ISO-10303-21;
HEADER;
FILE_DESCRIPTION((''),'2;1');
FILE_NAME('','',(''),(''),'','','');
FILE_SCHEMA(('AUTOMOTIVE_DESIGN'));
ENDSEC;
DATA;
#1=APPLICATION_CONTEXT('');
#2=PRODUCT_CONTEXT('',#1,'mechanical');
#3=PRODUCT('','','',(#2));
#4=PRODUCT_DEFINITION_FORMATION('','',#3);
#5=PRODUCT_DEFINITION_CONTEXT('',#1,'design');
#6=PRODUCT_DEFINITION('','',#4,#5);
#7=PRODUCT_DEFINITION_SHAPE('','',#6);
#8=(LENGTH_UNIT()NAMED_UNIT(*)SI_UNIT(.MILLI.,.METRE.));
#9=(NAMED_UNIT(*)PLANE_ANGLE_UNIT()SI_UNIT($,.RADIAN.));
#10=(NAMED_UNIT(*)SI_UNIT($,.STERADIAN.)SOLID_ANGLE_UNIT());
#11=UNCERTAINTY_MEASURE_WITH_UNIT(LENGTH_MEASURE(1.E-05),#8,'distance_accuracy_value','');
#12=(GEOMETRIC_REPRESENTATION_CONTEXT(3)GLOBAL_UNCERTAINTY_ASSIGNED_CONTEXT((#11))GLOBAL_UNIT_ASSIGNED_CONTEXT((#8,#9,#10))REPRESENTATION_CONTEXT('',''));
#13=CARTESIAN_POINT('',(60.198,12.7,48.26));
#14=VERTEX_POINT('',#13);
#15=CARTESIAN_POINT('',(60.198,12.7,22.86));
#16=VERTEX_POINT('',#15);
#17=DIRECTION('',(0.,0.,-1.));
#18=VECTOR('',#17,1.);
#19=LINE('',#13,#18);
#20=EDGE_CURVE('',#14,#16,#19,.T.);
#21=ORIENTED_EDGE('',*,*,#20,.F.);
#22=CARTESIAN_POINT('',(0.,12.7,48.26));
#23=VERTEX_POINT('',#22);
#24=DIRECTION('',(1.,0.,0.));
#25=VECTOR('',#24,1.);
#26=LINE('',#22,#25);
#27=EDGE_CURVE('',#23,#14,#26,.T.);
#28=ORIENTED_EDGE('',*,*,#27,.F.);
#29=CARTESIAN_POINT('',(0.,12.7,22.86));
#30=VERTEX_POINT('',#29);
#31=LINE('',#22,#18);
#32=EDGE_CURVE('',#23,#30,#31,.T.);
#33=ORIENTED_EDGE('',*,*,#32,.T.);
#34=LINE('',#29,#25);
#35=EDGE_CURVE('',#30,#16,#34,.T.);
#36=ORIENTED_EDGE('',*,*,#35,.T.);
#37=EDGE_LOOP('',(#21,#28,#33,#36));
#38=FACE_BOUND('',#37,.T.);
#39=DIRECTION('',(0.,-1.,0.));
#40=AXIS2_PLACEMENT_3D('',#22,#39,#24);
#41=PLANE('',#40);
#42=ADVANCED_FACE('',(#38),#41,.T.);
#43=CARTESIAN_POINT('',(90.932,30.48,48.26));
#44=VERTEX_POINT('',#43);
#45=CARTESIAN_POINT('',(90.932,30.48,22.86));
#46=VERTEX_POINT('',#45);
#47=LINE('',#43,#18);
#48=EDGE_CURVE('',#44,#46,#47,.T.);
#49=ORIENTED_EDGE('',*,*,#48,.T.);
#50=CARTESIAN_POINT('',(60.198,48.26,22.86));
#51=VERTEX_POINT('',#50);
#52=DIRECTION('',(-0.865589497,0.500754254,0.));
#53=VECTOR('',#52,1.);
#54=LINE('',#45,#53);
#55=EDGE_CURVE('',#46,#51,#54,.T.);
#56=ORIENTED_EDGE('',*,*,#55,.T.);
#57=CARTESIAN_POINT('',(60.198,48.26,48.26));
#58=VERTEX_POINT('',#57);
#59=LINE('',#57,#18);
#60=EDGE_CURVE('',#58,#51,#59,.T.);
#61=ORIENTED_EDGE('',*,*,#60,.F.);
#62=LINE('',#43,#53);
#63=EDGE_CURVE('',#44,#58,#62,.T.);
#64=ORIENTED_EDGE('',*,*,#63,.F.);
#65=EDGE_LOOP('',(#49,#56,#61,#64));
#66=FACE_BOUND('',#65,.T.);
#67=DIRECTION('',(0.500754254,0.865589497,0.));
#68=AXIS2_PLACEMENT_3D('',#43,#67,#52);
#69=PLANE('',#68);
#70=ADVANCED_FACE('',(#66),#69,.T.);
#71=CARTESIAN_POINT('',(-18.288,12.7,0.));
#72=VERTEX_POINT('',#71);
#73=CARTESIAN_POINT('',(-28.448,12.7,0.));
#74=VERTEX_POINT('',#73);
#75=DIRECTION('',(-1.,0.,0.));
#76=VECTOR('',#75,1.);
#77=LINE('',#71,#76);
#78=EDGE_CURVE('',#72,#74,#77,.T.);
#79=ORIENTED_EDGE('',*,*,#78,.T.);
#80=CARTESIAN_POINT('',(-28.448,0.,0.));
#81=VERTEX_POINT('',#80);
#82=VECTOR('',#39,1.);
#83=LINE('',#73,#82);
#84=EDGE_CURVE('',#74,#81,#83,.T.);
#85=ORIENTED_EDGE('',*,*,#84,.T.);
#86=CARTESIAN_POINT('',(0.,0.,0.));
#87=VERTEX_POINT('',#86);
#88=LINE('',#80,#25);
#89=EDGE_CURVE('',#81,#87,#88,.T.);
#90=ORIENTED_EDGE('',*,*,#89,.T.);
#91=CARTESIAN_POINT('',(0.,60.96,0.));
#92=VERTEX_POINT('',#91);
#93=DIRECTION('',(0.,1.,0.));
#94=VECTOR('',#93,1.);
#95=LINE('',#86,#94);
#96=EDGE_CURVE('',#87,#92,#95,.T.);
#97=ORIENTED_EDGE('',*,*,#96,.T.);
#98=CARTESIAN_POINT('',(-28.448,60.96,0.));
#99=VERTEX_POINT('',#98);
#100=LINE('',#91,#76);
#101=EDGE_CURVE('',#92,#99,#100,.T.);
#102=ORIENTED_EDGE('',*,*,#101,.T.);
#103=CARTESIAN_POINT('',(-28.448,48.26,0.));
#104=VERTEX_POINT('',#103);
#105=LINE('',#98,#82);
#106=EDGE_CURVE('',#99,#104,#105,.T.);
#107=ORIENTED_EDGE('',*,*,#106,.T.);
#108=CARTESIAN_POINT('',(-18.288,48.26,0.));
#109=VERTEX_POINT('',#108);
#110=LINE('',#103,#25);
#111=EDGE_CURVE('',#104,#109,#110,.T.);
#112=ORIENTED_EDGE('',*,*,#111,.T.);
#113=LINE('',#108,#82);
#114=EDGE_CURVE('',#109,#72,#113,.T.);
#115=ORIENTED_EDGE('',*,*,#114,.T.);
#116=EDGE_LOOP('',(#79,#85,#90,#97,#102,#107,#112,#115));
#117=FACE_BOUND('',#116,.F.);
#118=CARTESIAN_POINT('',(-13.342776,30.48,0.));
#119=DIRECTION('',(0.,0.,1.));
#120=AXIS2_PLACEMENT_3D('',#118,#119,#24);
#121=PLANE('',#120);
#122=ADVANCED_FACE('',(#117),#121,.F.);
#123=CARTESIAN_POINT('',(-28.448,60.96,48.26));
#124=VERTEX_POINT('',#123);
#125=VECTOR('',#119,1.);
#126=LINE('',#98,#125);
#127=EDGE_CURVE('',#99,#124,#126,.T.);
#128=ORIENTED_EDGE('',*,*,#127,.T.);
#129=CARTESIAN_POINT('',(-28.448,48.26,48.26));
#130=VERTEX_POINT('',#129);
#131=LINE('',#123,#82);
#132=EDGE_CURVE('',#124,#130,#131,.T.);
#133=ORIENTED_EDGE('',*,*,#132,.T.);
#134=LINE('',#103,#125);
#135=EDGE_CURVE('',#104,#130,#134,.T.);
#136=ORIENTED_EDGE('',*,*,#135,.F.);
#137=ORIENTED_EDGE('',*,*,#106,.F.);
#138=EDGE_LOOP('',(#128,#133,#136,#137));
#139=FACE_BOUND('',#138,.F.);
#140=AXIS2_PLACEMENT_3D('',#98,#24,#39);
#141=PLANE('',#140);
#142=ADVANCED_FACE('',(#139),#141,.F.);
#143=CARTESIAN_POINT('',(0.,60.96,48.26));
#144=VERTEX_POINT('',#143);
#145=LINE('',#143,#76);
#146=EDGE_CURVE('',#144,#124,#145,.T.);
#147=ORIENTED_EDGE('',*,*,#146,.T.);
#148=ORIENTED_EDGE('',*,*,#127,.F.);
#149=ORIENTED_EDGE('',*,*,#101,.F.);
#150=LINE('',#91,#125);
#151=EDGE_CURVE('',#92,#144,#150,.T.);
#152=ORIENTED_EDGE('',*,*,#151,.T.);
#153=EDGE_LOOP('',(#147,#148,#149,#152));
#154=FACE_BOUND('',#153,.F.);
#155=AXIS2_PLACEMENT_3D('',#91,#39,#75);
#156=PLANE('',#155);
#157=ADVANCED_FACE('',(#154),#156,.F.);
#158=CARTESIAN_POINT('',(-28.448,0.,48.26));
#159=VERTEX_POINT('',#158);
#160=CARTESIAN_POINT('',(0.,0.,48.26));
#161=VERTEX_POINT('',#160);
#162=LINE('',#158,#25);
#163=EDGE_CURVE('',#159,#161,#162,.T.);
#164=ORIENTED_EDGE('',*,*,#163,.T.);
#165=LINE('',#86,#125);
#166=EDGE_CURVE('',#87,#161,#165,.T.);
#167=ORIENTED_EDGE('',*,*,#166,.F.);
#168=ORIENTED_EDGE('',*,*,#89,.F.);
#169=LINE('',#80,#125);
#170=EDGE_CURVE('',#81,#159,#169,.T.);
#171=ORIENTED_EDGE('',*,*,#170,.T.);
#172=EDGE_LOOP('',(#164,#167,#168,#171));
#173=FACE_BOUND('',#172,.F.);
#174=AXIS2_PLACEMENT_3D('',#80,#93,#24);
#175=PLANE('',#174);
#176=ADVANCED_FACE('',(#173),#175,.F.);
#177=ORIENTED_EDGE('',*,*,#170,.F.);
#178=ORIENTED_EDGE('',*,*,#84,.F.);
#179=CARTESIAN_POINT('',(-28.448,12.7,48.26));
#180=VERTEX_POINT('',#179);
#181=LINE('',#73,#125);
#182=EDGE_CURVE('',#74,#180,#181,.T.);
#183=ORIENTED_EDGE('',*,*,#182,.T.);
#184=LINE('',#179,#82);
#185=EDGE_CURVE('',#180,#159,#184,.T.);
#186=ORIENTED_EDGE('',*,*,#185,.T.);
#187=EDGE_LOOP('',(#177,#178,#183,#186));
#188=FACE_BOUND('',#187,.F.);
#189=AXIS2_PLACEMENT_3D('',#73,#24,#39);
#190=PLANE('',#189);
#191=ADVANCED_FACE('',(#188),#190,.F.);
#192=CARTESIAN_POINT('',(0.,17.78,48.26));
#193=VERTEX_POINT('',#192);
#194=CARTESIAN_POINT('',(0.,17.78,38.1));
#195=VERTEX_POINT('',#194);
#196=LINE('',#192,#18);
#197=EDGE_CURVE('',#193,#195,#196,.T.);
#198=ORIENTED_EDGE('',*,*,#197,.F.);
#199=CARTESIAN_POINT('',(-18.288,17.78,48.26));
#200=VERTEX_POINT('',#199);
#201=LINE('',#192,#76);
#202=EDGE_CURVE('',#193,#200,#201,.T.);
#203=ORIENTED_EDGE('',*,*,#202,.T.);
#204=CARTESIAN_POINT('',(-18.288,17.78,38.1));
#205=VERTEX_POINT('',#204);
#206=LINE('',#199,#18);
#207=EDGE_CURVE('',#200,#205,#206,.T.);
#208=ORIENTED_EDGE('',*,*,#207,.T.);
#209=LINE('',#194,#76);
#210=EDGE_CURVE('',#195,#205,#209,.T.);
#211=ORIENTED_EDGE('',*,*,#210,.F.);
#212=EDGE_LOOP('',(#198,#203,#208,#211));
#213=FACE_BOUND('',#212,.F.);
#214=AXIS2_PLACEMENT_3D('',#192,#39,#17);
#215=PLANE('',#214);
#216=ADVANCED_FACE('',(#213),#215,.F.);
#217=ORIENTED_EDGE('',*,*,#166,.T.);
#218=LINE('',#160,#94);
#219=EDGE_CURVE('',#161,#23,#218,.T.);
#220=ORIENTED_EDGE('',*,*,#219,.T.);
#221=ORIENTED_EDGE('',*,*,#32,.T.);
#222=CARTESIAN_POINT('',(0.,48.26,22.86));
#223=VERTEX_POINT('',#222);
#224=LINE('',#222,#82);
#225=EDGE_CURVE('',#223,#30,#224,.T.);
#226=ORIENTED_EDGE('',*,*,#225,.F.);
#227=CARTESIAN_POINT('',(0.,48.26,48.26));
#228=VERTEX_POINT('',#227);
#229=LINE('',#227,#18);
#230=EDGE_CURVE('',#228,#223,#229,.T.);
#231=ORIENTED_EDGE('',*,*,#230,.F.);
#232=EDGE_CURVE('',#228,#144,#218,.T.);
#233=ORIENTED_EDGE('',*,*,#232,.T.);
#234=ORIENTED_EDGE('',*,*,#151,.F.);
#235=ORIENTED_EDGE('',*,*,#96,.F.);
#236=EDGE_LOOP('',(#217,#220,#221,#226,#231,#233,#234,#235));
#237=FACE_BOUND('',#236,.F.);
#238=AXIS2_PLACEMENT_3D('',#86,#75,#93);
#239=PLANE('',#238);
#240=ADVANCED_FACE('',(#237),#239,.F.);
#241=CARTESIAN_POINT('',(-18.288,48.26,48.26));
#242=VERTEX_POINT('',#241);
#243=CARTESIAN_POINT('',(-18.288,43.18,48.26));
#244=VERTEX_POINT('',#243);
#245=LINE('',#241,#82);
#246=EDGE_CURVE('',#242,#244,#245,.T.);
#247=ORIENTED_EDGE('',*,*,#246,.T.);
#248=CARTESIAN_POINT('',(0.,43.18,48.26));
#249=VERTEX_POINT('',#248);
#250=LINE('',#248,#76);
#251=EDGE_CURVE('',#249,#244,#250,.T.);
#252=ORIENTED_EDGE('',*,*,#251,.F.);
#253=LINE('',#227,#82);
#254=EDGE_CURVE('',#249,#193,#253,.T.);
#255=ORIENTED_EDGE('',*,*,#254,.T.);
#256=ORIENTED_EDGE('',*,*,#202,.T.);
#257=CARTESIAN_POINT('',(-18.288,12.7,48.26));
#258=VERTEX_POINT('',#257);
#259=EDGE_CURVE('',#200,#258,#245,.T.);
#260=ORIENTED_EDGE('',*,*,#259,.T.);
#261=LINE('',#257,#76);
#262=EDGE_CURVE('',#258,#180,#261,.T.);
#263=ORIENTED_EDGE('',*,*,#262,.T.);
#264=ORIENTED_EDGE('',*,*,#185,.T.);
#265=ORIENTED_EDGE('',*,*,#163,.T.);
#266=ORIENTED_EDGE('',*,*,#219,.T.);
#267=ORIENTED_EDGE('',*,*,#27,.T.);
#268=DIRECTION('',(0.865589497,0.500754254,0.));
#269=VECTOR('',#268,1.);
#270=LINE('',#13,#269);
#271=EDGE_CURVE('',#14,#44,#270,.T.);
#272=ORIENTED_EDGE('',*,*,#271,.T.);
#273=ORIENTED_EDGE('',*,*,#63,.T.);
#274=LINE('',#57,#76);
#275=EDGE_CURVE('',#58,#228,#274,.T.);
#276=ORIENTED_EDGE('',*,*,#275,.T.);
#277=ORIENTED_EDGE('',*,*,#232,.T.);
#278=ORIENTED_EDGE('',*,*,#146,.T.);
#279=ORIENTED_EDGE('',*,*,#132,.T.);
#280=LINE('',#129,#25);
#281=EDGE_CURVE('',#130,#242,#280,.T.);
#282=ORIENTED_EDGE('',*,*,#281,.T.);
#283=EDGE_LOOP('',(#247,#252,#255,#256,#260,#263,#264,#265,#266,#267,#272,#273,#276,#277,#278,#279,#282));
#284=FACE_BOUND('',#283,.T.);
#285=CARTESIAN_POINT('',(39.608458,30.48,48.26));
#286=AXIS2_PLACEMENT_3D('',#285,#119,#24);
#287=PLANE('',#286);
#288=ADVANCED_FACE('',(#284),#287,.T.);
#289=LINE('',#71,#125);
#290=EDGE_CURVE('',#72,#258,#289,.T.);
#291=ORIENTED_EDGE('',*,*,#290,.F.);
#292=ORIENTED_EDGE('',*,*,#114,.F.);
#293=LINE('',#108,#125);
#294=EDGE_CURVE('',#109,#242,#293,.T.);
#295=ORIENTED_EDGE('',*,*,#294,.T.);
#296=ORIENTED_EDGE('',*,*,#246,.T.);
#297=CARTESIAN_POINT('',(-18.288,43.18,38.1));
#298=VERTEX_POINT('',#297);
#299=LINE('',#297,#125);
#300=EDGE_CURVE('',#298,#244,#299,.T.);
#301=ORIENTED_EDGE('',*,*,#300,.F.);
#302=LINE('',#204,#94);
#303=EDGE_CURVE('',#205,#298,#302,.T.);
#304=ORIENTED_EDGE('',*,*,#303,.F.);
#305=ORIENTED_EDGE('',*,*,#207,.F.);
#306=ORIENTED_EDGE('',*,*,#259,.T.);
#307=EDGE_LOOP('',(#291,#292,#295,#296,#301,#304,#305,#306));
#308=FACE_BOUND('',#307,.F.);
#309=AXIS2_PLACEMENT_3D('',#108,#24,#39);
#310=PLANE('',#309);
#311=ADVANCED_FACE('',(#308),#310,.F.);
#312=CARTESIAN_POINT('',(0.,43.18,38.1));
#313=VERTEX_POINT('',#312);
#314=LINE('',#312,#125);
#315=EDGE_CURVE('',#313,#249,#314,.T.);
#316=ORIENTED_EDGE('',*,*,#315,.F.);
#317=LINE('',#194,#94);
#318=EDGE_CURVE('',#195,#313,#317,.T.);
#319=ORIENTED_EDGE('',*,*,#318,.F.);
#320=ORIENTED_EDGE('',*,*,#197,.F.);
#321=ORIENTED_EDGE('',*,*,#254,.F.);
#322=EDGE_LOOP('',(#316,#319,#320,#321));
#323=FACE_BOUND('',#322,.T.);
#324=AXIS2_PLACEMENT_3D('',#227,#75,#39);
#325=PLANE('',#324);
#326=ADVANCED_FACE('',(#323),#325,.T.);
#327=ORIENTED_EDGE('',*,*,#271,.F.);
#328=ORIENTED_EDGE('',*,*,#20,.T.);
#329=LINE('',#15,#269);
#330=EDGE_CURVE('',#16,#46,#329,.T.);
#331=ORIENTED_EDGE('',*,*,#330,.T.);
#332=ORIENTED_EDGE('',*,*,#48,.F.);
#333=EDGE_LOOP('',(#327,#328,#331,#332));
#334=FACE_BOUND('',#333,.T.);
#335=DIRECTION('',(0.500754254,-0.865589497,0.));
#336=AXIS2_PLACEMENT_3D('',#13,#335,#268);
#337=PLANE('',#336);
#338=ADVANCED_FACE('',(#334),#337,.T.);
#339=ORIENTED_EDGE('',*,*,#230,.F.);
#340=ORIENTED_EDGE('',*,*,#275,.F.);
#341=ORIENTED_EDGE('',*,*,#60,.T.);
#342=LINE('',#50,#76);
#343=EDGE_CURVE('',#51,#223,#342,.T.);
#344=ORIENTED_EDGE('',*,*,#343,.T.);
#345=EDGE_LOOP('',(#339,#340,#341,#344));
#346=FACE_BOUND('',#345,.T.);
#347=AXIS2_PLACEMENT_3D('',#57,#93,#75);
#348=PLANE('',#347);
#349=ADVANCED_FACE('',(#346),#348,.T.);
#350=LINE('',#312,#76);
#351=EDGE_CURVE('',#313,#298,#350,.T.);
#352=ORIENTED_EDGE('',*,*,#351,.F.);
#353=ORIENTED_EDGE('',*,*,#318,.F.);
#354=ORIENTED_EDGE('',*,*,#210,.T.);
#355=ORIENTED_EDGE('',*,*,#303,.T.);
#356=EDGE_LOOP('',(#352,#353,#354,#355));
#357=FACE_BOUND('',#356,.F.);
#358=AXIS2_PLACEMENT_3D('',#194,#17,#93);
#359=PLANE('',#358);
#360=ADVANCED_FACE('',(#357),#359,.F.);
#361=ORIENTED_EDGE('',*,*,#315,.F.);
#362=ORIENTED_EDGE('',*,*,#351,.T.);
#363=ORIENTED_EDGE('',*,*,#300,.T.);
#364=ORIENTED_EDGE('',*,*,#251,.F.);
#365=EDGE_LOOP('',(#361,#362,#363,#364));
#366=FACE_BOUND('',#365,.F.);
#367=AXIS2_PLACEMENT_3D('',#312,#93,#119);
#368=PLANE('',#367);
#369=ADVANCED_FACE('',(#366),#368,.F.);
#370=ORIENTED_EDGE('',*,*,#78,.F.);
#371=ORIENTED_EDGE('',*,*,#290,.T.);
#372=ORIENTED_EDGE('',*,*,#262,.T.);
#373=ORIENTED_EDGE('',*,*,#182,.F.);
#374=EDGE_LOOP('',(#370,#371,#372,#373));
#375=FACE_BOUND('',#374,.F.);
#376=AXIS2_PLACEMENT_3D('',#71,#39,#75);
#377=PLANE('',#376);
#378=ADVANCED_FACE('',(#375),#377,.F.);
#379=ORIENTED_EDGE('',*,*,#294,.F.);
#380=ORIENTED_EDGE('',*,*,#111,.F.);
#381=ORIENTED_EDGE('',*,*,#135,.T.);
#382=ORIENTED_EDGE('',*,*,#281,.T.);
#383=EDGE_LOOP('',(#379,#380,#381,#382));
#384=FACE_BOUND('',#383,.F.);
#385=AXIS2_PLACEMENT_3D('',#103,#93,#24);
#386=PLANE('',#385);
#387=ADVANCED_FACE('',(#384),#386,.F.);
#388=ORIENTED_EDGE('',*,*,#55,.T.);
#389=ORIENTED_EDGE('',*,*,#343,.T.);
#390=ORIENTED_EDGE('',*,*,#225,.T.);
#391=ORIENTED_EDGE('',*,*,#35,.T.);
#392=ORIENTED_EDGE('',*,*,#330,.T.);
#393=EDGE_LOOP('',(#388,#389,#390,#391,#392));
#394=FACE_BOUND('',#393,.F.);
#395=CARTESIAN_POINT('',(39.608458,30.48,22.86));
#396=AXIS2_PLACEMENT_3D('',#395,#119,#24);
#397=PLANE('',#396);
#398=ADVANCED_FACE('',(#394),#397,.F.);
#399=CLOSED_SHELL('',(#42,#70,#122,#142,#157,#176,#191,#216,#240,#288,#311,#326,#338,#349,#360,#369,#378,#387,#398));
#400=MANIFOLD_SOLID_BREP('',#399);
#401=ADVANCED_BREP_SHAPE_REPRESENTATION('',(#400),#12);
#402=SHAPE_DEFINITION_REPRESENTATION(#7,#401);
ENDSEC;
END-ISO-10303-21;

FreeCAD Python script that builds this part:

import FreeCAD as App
import Part
import Sketcher

V = App.Vector
Q = App.Units.Quantity

doc = App.newDocument("Part")
params = doc.addObject("Spreadsheet::Sheet", "Params")
for row, (alias, value) in enumerate([
    ("sketch1_width", "0.4 in"),
    ("sketch1_height", "2.4 in"),
    ("sketch1_height2", "0.5 in"),
    ("sketch1_width2", "1.12 in"),
    ("pad1_length", "1.9 in"),
    ("sketch2_width", "1 in"),
    ("sketch2_height", "0.4 in"),
    ("sketch3_height", "1.4 in"),
    ("sketch3_width", "2.37 in"),
    ("pad2_length", "1 in"),
], start=1):
    params.set(f"A{row}", alias)
    params.set(f"B{row}", "=" + value)
    params.setAlias(f"B{row}", alias)

body = doc.addObject("PartDesign::Body", "Body")

sketch1 = doc.addObject("Sketcher::SketchObject", "Sketch")
body.addObject(sketch1)
sketch1.AttachmentSupport = (doc.XY_Plane, [""])
sketch1.MapMode = "FlatFace"
sketch1.addGeometry([
    Part.LineSegment(V(-28, 0, 0), V(0, 0, 0)),
    Part.LineSegment(V(0, 0, 0), V(0, 61, 0)),
    Part.LineSegment(V(0, 61, 0), V(-28, 61, 0)),
    Part.LineSegment(V(-28, 61, 0), V(-28, 48, 0)),
    Part.LineSegment(V(-28, 48, 0), V(-18, 48, 0)),
    Part.LineSegment(V(-18, 48, 0), V(-18, 13, 0)),
    Part.LineSegment(V(-18, 13, 0), V(-28, 13, 0)),
    Part.LineSegment(V(-28, 13, 0), V(-28, 0, 0)),
], False)
sketch1.addConstraint([
    Sketcher.Constraint("Coincident", 0, 2, 1, 1),
    Sketcher.Constraint("Coincident", 1, 2, 2, 1),
    Sketcher.Constraint("Coincident", 2, 2, 3, 1),
    Sketcher.Constraint("Coincident", 3, 2, 4, 1),
    Sketcher.Constraint("Coincident", 4, 2, 5, 1),
    Sketcher.Constraint("Coincident", 5, 2, 6, 1),
    Sketcher.Constraint("Coincident", 6, 2, 7, 1),
    Sketcher.Constraint("Coincident", 7, 2, 0, 1),
    Sketcher.Constraint("Horizontal", 0),
    Sketcher.Constraint("Vertical", 1),
    Sketcher.Constraint("Horizontal", 2),
    Sketcher.Constraint("Vertical", 3),
    Sketcher.Constraint("Horizontal", 4),
    Sketcher.Constraint("Vertical", 5),
    Sketcher.Constraint("Horizontal", 6),
    Sketcher.Constraint("Vertical", 7),
    Sketcher.Constraint("Coincident", 0, 2, -1, 1),
    Sketcher.Constraint("Vertical", 3, 2, 6, 2),
    Sketcher.Constraint("Equal", 3, 7),
    Sketcher.Constraint("DistanceX", 4, 1, 4, 2, Q("0.4 in")),
    Sketcher.Constraint("DistanceY", 1, 1, 1, 2, Q("2.4 in")),
    Sketcher.Constraint("DistanceY", 3, 2, 3, 1, Q("0.5 in")),
    Sketcher.Constraint("DistanceX", 0, 1, 0, 2, Q("1.12 in")),
])
sketch1.setExpression("Constraints[19]", "Params.sketch1_width")
sketch1.setExpression("Constraints[20]", "Params.sketch1_height")
sketch1.setExpression("Constraints[21]", "Params.sketch1_height2")
sketch1.setExpression("Constraints[22]", "Params.sketch1_width2")
pad1 = doc.addObject("PartDesign::Pad", "Pad")
body.addObject(pad1)
pad1.Profile = sketch1
pad1.setExpression("Length", "Params.pad1_length")

sketch2 = doc.addObject("Sketcher::SketchObject", "Sketch001")
body.addObject(sketch2)
sketch2.AttachmentSupport = (doc.YZ_Plane, [""])
sketch2.MapMode = "FlatFace"
sketch2.addGeometry([
    Part.LineSegment(V(18, 38, 0), V(43, 38, 0)),
    Part.LineSegment(V(43, 38, 0), V(43, 48, 0)),
    Part.LineSegment(V(43, 48, 0), V(18, 48, 0)),
    Part.LineSegment(V(18, 48, 0), V(18, 38, 0)),
], False)
sketch2.addConstraint([
    Sketcher.Constraint("Coincident", 0, 2, 1, 1),
    Sketcher.Constraint("Coincident", 1, 2, 2, 1),
    Sketcher.Constraint("Coincident", 2, 2, 3, 1),
    Sketcher.Constraint("Coincident", 3, 2, 0, 1),
    Sketcher.Constraint("Horizontal", 0),
    Sketcher.Constraint("Vertical", 1),
    Sketcher.Constraint("Horizontal", 2),
    Sketcher.Constraint("Vertical", 3),
    Sketcher.Constraint("DistanceX", 0, 1, 0, 2, Q("1 in")),
    Sketcher.Constraint("DistanceY", 1, 1, 1, 2, Q("0.4 in")),
    Sketcher.Constraint("DistanceX", -1, 1, 0, 2, Q("1.7 in")),
    Sketcher.Constraint("DistanceY", -1, 1, 0, 2, Q("1.5 in")),
])
sketch2.setExpression("Constraints[8]", "Params.sketch2_width")
sketch2.setExpression("Constraints[9]", "Params.sketch2_height")
pocket1 = doc.addObject("PartDesign::Pocket", "Pocket")
body.addObject(pocket1)
pocket1.Profile = sketch2
pocket1.Type = "ThroughAll"

sketch3 = doc.addObject("Sketcher::SketchObject", "Sketch002")
body.addObject(sketch3)
sketch3.AttachmentSupport = (doc.XY_Plane, [""])
sketch3.MapMode = "FlatFace"
sketch3.AttachmentOffset = App.Placement(V(0, 0, 1.9 * 25.4), App.Rotation())
sketch3.addGeometry([
    Part.LineSegment(V(0, 48, 0), V(0, 13, 0)),
    Part.LineSegment(V(0, 13, 0), V(60, 13, 0)),
    Part.LineSegment(V(60, 13, 0), V(91, 30, 0)),
    Part.LineSegment(V(91, 30, 0), V(60, 48, 0)),
    Part.LineSegment(V(60, 48, 0), V(0, 48, 0)),
], False)
sketch3.addConstraint([
    Sketcher.Constraint("Coincident", 0, 2, 1, 1),
    Sketcher.Constraint("Coincident", 1, 2, 2, 1),
    Sketcher.Constraint("Coincident", 2, 2, 3, 1),
    Sketcher.Constraint("Coincident", 3, 2, 4, 1),
    Sketcher.Constraint("Coincident", 4, 2, 0, 1),
    Sketcher.Constraint("Vertical", 0),
    Sketcher.Constraint("Horizontal", 1),
    Sketcher.Constraint("Horizontal", 4),
    Sketcher.Constraint("PointOnObject", 0, 2, -2),
    Sketcher.Constraint("Vertical", 1, 2, 3, 2),
    Sketcher.Constraint("Equal", 2, 3),
    Sketcher.Constraint("DistanceY", 0, 2, 0, 1, Q("1.4 in")),
    Sketcher.Constraint("DistanceX", 1, 1, 1, 2, Q("2.37 in")),
    Sketcher.Constraint("DistanceY", -1, 1, 0, 2, Q("0.5 in")),
    Sketcher.Constraint("DistanceX", -1, 1, 2, 2, Q("3.58 in")),
])
sketch3.setExpression("Constraints[11]", "Params.sketch3_height")
sketch3.setExpression("Constraints[12]", "Params.sketch3_width")
pad2 = doc.addObject("PartDesign::Pad", "Pad001")
body.addObject(pad2)
pad2.Profile = sketch3
pad2.setExpression("Length", "Params.pad2_length")
pad2.Reversed = True

doc.recompute()
